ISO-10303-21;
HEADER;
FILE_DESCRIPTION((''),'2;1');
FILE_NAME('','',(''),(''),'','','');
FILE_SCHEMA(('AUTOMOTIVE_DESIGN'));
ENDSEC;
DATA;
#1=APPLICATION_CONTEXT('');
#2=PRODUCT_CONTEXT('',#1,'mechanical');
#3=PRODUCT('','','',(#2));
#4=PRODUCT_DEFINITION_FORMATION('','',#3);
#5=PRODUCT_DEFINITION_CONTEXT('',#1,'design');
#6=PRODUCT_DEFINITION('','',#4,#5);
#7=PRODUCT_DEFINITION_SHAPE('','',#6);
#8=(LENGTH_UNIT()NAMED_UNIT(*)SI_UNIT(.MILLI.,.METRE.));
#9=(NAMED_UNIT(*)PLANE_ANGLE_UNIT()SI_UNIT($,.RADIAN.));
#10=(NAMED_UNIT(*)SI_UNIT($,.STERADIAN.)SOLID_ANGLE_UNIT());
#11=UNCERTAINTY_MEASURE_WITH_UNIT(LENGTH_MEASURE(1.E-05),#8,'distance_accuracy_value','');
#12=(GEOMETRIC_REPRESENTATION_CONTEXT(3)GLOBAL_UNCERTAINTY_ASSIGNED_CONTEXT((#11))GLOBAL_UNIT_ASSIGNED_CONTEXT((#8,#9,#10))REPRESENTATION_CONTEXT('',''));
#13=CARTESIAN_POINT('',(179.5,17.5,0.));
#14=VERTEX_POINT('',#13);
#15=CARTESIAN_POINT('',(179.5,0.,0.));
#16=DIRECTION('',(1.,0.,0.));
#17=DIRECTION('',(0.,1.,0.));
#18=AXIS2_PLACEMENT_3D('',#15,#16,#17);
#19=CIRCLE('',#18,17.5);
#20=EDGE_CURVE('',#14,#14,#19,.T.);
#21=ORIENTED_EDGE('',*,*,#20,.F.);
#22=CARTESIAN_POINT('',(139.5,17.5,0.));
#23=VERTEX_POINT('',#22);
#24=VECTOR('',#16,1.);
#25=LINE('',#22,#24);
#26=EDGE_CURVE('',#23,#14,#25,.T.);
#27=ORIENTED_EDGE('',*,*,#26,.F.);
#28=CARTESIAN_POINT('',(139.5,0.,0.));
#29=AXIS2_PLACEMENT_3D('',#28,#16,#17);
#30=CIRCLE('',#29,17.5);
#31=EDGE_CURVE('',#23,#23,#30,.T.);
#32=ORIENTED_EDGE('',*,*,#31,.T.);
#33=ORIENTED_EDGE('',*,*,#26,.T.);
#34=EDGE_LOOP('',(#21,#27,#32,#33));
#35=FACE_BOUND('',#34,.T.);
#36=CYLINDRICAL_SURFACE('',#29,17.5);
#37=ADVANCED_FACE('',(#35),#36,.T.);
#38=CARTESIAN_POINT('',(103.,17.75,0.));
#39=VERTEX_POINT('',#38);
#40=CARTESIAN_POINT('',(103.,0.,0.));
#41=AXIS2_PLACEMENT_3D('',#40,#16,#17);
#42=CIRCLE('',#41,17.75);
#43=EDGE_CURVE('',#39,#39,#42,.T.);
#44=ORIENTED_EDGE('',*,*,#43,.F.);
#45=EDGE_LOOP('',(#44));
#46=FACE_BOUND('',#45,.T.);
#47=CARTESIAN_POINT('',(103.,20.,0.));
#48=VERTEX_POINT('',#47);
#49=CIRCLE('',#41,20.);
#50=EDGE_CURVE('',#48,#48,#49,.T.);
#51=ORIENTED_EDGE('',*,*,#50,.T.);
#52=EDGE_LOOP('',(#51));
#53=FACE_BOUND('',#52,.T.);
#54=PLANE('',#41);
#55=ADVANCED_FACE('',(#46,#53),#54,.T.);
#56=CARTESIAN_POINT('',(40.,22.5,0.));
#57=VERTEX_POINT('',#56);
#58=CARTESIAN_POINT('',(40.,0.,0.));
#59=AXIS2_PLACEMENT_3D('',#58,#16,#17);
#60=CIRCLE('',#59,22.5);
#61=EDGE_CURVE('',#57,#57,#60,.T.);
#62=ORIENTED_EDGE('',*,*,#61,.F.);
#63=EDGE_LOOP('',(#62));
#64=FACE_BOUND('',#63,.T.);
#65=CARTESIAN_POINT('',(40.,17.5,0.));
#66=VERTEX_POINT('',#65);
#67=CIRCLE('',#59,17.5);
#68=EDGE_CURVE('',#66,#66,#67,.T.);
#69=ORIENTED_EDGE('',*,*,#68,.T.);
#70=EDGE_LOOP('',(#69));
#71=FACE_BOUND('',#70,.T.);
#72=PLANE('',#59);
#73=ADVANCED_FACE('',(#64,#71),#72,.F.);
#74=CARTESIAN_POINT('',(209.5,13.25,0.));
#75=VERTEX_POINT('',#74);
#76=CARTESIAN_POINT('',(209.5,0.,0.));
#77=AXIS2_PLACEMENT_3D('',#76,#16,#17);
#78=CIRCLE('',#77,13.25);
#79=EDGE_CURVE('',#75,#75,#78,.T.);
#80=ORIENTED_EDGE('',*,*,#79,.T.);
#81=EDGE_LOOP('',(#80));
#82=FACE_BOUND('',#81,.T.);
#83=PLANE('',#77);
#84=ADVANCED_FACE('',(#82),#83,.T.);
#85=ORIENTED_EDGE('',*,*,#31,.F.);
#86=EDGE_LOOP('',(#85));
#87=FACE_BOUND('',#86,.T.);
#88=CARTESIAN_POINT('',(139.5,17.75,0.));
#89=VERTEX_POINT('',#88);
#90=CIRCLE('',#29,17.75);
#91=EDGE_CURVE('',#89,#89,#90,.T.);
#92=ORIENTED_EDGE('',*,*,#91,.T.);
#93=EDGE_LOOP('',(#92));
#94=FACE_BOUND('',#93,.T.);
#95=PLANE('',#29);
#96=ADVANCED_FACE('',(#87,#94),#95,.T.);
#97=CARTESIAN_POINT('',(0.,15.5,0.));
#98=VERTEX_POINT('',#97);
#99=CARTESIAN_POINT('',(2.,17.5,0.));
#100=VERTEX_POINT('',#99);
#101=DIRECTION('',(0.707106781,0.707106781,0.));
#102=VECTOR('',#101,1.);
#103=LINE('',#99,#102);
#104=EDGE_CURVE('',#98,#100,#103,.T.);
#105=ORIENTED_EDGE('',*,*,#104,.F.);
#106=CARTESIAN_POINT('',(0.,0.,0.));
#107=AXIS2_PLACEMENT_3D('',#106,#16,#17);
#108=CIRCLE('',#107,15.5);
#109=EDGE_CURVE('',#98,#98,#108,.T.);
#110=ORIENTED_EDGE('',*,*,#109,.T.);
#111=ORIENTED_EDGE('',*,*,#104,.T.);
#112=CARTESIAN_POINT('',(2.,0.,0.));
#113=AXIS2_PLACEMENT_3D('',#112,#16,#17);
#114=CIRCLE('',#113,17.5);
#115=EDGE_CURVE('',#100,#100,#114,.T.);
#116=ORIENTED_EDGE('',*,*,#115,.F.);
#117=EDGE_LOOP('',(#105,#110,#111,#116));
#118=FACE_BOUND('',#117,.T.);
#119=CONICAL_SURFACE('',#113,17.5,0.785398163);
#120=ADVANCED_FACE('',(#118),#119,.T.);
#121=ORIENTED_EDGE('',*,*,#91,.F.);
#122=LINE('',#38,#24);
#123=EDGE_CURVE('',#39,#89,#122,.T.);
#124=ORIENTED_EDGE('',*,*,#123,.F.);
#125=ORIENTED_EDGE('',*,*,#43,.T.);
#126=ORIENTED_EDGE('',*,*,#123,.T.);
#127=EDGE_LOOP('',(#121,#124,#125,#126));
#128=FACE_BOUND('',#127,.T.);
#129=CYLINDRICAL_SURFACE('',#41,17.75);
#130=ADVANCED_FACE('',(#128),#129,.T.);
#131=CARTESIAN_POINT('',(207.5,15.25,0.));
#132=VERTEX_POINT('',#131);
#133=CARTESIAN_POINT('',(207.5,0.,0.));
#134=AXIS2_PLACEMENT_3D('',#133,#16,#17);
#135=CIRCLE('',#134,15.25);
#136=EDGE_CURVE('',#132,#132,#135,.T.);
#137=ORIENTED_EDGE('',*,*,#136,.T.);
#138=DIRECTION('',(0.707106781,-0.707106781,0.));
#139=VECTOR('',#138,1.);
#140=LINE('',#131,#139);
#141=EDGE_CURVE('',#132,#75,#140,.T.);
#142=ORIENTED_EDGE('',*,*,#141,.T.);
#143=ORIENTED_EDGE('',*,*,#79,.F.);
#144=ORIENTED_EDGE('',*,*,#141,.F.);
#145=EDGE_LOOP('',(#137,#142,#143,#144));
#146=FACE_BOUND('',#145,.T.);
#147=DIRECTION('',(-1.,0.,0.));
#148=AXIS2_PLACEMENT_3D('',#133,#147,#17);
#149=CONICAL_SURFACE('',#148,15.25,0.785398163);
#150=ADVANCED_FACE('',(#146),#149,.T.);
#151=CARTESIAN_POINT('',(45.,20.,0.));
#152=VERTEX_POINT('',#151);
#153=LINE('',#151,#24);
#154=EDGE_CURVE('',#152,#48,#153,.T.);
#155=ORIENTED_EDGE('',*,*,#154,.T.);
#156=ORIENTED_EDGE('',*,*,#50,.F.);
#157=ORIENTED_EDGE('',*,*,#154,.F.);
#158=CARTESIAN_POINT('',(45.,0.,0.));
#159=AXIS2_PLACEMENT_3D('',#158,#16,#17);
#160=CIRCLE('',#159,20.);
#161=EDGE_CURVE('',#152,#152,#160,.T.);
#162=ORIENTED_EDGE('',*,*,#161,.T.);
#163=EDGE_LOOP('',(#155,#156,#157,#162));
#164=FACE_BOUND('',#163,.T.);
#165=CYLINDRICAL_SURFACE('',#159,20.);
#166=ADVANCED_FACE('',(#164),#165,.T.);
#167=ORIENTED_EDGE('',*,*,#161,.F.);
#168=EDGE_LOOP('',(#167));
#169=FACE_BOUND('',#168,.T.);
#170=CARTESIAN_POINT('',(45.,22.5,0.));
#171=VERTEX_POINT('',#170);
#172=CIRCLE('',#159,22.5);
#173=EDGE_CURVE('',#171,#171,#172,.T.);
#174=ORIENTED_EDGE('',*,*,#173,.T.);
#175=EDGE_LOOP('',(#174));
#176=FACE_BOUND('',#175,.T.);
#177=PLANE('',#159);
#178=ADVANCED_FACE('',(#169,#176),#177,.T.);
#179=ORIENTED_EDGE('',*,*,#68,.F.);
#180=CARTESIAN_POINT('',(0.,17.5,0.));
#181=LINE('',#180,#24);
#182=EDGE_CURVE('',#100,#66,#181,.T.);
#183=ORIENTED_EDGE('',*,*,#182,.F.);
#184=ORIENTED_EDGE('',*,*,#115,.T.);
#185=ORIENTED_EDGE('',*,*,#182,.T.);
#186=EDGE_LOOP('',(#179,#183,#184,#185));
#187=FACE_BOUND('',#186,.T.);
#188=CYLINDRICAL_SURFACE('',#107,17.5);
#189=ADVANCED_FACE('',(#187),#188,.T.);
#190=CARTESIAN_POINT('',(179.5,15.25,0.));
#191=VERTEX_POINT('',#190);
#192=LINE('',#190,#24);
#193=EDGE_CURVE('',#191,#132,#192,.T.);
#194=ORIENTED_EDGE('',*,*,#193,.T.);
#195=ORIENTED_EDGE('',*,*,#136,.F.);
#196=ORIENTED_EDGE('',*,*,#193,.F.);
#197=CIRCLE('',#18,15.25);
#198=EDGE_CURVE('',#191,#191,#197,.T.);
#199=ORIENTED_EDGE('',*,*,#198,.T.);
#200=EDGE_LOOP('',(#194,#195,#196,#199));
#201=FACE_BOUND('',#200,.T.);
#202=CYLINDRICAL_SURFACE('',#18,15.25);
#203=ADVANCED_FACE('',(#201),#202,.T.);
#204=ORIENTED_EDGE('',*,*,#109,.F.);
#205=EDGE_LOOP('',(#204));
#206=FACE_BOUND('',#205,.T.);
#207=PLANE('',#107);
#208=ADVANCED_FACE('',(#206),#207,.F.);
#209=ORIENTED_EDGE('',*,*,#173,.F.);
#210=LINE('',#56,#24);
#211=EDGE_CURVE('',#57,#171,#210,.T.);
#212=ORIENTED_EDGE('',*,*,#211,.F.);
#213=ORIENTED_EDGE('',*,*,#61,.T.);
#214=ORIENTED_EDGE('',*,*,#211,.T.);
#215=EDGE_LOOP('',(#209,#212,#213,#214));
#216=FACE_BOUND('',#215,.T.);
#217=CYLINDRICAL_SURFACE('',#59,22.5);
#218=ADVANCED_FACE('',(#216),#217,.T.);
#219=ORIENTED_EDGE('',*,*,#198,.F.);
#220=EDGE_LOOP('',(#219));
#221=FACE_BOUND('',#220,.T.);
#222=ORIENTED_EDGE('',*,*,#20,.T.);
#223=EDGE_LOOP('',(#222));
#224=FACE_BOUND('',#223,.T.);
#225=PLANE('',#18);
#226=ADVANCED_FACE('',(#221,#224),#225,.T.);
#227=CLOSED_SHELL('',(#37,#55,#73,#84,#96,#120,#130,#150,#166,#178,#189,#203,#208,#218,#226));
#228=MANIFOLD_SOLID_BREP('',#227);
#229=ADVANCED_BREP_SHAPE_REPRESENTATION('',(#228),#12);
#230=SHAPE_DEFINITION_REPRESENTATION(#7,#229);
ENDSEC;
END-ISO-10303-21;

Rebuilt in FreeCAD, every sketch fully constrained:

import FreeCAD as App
import Part
import Sketcher

V = App.Vector


def edges_at(feature, points):
    """Names of the edges that pass closest to the given points."""
    edges = feature.Shape.Edges
    near = lambda p: min(range(len(edges)), key=lambda i: edges[i].distToShape(Part.Vertex(*p))[0])
    return sorted({f"Edge{near(p) + 1}" for p in points})


def add_polygon(sketch, points):
    """Adds a closed chain of lines whose ends are joined by coincident constraints."""
    first, n = sketch.GeometryCount, len(points)
    for a, b in zip(points, points[1:] + points[:1]):
        sketch.addGeometry(Part.LineSegment(App.Vector(*a, 0), App.Vector(*b, 0)), False)
    for i in range(n):
        sketch.addConstraint(Sketcher.Constraint("Coincident", first + i, 2, first + (i + 1) % n, 1))

doc = App.newDocument("Part")
params = doc.addObject("Spreadsheet::Sheet", "Params")
for row, (alias, value) in enumerate([
    ("sketch1_width", "40 mm"),
    ("sketch1_width2", "30 mm"),
    ("sketch1_width3", "58 mm"),
    ("sketch1_width4", "209.5 mm"),
    ("sketch1_height", "17.5 mm"),
    ("revolution_angle", "360 deg"),
    ("chamfer_size", "2 mm"),
    ("chamfer2_size", "2 mm"),
], start=1):
    params.set(f"A{row}", alias)
    params.set(f"B{row}", "=" + value)
    params.setAlias(f"B{row}", alias)

body = doc.addObject("PartDesign::Body", "Body")

# Sketch on XY plane
sketch1 = doc.addObject("Sketcher::SketchObject", "Sketch")
body.addObject(sketch1)
sketch1.AttachmentSupport = (doc.XY_Plane, [""])
sketch1.MapMode = "FlatFace"
add_polygon(sketch1, [(0, 17.5), (0, 0), (209.5, 0), (209.5, 15.25), (179.5, 15.25), (179.5, 17.5), (139.5, 17.5), (139.5, 17.75), (103, 17.75), (103, 20), (45, 20), (45, 22.5), (40, 22.5), (40, 17.5)])  # lines 0-13
sketch1.addConstraint(Sketcher.Constraint("Vertical", 0))
sketch1.addConstraint(Sketcher.Constraint("Horizontal", 1))
sketch1.addConstraint(Sketcher.Constraint("Vertical", 2))
sketch1.addConstraint(Sketcher.Constraint("Horizontal", 3))
sketch1.addConstraint(Sketcher.Constraint("Vertical", 4))
sketch1.addConstraint(Sketcher.Constraint("Horizontal", 5))
sketch1.addConstraint(Sketcher.Constraint("Vertical", 6))
sketch1.addConstraint(Sketcher.Constraint("Horizontal", 7))
sketch1.addConstraint(Sketcher.Constraint("Vertical", 8))
sketch1.addConstraint(Sketcher.Constraint("Horizontal", 9))
sketch1.addConstraint(Sketcher.Constraint("Vertical", 10))
sketch1.addConstraint(Sketcher.Constraint("Horizontal", 11))
sketch1.addConstraint(Sketcher.Constraint("Vertical", 12))
sketch1.addConstraint(Sketcher.Constraint("Horizontal", 13))
sketch1.addConstraint(Sketcher.Constraint("Coincident", 0, 2, -1, 1))
sketch1.addConstraint(Sketcher.Constraint("Horizontal", 5, 2, 12, 2))
sketch1.addConstraint(Sketcher.Constraint("Equal", 5, 13))
sketch1.addConstraint(Sketcher.Constraint("Equal", 4, 8))
sketch1.addConstraint(Sketcher.Constraint("Equal", 11, 12))
sketch1.addConstraint(Sketcher.Constraint("DistanceX", 5, 2, 5, 1, 40.0))
sketch1.addConstraint(Sketcher.Constraint("DistanceX", -1, 1, 9, 2, 45.0))
sketch1.addConstraint(Sketcher.Constraint("DistanceX", 3, 2, 3, 1, 30.0))
sketch1.addConstraint(Sketcher.Constraint("DistanceX", 9, 2, 9, 1, 58.0))
sketch1.addConstraint(Sketcher.Constraint("DistanceX", 1, 1, 1, 2, 209.5))
sketch1.addConstraint(Sketcher.Constraint("DistanceY", 0, 2, 0, 1, 17.5))
sketch1.addConstraint(Sketcher.Constraint("DistanceY", 10, 1, 10, 2, 2.5))
sketch1.addConstraint(Sketcher.Constraint("DistanceY", 2, 1, 2, 2, 15.25))
sketch1.setExpression("Constraints[33]", "Params.sketch1_width")
sketch1.setExpression("Constraints[35]", "Params.sketch1_width2")
sketch1.setExpression("Constraints[36]", "Params.sketch1_width3")
sketch1.setExpression("Constraints[37]", "Params.sketch1_width4")
sketch1.setExpression("Constraints[38]", "Params.sketch1_height")
revolution = doc.addObject("PartDesign::Revolution", "Revolution")
body.addObject(revolution)
revolution.Profile = sketch1
revolution.ReferenceAxis = (sketch1, ["H_Axis"])
revolution.setExpression("Angle", "Params.revolution_angle")
doc.recompute()

chamfer = doc.addObject("PartDesign::Chamfer", "Chamfer")
body.addObject(chamfer)
chamfer.Base = (revolution, edges_at(revolution, [(0, -17.5, 0)]))
chamfer.setExpression("Size", "Params.chamfer_size")
doc.recompute()

chamfer2 = doc.addObject("PartDesign::Chamfer", "Chamfer001")
body.addObject(chamfer2)
chamfer2.Base = (chamfer, edges_at(chamfer, [(209.5, -15.25, 0)]))
chamfer2.setExpression("Size", "Params.chamfer2_size")

doc.recompute()
